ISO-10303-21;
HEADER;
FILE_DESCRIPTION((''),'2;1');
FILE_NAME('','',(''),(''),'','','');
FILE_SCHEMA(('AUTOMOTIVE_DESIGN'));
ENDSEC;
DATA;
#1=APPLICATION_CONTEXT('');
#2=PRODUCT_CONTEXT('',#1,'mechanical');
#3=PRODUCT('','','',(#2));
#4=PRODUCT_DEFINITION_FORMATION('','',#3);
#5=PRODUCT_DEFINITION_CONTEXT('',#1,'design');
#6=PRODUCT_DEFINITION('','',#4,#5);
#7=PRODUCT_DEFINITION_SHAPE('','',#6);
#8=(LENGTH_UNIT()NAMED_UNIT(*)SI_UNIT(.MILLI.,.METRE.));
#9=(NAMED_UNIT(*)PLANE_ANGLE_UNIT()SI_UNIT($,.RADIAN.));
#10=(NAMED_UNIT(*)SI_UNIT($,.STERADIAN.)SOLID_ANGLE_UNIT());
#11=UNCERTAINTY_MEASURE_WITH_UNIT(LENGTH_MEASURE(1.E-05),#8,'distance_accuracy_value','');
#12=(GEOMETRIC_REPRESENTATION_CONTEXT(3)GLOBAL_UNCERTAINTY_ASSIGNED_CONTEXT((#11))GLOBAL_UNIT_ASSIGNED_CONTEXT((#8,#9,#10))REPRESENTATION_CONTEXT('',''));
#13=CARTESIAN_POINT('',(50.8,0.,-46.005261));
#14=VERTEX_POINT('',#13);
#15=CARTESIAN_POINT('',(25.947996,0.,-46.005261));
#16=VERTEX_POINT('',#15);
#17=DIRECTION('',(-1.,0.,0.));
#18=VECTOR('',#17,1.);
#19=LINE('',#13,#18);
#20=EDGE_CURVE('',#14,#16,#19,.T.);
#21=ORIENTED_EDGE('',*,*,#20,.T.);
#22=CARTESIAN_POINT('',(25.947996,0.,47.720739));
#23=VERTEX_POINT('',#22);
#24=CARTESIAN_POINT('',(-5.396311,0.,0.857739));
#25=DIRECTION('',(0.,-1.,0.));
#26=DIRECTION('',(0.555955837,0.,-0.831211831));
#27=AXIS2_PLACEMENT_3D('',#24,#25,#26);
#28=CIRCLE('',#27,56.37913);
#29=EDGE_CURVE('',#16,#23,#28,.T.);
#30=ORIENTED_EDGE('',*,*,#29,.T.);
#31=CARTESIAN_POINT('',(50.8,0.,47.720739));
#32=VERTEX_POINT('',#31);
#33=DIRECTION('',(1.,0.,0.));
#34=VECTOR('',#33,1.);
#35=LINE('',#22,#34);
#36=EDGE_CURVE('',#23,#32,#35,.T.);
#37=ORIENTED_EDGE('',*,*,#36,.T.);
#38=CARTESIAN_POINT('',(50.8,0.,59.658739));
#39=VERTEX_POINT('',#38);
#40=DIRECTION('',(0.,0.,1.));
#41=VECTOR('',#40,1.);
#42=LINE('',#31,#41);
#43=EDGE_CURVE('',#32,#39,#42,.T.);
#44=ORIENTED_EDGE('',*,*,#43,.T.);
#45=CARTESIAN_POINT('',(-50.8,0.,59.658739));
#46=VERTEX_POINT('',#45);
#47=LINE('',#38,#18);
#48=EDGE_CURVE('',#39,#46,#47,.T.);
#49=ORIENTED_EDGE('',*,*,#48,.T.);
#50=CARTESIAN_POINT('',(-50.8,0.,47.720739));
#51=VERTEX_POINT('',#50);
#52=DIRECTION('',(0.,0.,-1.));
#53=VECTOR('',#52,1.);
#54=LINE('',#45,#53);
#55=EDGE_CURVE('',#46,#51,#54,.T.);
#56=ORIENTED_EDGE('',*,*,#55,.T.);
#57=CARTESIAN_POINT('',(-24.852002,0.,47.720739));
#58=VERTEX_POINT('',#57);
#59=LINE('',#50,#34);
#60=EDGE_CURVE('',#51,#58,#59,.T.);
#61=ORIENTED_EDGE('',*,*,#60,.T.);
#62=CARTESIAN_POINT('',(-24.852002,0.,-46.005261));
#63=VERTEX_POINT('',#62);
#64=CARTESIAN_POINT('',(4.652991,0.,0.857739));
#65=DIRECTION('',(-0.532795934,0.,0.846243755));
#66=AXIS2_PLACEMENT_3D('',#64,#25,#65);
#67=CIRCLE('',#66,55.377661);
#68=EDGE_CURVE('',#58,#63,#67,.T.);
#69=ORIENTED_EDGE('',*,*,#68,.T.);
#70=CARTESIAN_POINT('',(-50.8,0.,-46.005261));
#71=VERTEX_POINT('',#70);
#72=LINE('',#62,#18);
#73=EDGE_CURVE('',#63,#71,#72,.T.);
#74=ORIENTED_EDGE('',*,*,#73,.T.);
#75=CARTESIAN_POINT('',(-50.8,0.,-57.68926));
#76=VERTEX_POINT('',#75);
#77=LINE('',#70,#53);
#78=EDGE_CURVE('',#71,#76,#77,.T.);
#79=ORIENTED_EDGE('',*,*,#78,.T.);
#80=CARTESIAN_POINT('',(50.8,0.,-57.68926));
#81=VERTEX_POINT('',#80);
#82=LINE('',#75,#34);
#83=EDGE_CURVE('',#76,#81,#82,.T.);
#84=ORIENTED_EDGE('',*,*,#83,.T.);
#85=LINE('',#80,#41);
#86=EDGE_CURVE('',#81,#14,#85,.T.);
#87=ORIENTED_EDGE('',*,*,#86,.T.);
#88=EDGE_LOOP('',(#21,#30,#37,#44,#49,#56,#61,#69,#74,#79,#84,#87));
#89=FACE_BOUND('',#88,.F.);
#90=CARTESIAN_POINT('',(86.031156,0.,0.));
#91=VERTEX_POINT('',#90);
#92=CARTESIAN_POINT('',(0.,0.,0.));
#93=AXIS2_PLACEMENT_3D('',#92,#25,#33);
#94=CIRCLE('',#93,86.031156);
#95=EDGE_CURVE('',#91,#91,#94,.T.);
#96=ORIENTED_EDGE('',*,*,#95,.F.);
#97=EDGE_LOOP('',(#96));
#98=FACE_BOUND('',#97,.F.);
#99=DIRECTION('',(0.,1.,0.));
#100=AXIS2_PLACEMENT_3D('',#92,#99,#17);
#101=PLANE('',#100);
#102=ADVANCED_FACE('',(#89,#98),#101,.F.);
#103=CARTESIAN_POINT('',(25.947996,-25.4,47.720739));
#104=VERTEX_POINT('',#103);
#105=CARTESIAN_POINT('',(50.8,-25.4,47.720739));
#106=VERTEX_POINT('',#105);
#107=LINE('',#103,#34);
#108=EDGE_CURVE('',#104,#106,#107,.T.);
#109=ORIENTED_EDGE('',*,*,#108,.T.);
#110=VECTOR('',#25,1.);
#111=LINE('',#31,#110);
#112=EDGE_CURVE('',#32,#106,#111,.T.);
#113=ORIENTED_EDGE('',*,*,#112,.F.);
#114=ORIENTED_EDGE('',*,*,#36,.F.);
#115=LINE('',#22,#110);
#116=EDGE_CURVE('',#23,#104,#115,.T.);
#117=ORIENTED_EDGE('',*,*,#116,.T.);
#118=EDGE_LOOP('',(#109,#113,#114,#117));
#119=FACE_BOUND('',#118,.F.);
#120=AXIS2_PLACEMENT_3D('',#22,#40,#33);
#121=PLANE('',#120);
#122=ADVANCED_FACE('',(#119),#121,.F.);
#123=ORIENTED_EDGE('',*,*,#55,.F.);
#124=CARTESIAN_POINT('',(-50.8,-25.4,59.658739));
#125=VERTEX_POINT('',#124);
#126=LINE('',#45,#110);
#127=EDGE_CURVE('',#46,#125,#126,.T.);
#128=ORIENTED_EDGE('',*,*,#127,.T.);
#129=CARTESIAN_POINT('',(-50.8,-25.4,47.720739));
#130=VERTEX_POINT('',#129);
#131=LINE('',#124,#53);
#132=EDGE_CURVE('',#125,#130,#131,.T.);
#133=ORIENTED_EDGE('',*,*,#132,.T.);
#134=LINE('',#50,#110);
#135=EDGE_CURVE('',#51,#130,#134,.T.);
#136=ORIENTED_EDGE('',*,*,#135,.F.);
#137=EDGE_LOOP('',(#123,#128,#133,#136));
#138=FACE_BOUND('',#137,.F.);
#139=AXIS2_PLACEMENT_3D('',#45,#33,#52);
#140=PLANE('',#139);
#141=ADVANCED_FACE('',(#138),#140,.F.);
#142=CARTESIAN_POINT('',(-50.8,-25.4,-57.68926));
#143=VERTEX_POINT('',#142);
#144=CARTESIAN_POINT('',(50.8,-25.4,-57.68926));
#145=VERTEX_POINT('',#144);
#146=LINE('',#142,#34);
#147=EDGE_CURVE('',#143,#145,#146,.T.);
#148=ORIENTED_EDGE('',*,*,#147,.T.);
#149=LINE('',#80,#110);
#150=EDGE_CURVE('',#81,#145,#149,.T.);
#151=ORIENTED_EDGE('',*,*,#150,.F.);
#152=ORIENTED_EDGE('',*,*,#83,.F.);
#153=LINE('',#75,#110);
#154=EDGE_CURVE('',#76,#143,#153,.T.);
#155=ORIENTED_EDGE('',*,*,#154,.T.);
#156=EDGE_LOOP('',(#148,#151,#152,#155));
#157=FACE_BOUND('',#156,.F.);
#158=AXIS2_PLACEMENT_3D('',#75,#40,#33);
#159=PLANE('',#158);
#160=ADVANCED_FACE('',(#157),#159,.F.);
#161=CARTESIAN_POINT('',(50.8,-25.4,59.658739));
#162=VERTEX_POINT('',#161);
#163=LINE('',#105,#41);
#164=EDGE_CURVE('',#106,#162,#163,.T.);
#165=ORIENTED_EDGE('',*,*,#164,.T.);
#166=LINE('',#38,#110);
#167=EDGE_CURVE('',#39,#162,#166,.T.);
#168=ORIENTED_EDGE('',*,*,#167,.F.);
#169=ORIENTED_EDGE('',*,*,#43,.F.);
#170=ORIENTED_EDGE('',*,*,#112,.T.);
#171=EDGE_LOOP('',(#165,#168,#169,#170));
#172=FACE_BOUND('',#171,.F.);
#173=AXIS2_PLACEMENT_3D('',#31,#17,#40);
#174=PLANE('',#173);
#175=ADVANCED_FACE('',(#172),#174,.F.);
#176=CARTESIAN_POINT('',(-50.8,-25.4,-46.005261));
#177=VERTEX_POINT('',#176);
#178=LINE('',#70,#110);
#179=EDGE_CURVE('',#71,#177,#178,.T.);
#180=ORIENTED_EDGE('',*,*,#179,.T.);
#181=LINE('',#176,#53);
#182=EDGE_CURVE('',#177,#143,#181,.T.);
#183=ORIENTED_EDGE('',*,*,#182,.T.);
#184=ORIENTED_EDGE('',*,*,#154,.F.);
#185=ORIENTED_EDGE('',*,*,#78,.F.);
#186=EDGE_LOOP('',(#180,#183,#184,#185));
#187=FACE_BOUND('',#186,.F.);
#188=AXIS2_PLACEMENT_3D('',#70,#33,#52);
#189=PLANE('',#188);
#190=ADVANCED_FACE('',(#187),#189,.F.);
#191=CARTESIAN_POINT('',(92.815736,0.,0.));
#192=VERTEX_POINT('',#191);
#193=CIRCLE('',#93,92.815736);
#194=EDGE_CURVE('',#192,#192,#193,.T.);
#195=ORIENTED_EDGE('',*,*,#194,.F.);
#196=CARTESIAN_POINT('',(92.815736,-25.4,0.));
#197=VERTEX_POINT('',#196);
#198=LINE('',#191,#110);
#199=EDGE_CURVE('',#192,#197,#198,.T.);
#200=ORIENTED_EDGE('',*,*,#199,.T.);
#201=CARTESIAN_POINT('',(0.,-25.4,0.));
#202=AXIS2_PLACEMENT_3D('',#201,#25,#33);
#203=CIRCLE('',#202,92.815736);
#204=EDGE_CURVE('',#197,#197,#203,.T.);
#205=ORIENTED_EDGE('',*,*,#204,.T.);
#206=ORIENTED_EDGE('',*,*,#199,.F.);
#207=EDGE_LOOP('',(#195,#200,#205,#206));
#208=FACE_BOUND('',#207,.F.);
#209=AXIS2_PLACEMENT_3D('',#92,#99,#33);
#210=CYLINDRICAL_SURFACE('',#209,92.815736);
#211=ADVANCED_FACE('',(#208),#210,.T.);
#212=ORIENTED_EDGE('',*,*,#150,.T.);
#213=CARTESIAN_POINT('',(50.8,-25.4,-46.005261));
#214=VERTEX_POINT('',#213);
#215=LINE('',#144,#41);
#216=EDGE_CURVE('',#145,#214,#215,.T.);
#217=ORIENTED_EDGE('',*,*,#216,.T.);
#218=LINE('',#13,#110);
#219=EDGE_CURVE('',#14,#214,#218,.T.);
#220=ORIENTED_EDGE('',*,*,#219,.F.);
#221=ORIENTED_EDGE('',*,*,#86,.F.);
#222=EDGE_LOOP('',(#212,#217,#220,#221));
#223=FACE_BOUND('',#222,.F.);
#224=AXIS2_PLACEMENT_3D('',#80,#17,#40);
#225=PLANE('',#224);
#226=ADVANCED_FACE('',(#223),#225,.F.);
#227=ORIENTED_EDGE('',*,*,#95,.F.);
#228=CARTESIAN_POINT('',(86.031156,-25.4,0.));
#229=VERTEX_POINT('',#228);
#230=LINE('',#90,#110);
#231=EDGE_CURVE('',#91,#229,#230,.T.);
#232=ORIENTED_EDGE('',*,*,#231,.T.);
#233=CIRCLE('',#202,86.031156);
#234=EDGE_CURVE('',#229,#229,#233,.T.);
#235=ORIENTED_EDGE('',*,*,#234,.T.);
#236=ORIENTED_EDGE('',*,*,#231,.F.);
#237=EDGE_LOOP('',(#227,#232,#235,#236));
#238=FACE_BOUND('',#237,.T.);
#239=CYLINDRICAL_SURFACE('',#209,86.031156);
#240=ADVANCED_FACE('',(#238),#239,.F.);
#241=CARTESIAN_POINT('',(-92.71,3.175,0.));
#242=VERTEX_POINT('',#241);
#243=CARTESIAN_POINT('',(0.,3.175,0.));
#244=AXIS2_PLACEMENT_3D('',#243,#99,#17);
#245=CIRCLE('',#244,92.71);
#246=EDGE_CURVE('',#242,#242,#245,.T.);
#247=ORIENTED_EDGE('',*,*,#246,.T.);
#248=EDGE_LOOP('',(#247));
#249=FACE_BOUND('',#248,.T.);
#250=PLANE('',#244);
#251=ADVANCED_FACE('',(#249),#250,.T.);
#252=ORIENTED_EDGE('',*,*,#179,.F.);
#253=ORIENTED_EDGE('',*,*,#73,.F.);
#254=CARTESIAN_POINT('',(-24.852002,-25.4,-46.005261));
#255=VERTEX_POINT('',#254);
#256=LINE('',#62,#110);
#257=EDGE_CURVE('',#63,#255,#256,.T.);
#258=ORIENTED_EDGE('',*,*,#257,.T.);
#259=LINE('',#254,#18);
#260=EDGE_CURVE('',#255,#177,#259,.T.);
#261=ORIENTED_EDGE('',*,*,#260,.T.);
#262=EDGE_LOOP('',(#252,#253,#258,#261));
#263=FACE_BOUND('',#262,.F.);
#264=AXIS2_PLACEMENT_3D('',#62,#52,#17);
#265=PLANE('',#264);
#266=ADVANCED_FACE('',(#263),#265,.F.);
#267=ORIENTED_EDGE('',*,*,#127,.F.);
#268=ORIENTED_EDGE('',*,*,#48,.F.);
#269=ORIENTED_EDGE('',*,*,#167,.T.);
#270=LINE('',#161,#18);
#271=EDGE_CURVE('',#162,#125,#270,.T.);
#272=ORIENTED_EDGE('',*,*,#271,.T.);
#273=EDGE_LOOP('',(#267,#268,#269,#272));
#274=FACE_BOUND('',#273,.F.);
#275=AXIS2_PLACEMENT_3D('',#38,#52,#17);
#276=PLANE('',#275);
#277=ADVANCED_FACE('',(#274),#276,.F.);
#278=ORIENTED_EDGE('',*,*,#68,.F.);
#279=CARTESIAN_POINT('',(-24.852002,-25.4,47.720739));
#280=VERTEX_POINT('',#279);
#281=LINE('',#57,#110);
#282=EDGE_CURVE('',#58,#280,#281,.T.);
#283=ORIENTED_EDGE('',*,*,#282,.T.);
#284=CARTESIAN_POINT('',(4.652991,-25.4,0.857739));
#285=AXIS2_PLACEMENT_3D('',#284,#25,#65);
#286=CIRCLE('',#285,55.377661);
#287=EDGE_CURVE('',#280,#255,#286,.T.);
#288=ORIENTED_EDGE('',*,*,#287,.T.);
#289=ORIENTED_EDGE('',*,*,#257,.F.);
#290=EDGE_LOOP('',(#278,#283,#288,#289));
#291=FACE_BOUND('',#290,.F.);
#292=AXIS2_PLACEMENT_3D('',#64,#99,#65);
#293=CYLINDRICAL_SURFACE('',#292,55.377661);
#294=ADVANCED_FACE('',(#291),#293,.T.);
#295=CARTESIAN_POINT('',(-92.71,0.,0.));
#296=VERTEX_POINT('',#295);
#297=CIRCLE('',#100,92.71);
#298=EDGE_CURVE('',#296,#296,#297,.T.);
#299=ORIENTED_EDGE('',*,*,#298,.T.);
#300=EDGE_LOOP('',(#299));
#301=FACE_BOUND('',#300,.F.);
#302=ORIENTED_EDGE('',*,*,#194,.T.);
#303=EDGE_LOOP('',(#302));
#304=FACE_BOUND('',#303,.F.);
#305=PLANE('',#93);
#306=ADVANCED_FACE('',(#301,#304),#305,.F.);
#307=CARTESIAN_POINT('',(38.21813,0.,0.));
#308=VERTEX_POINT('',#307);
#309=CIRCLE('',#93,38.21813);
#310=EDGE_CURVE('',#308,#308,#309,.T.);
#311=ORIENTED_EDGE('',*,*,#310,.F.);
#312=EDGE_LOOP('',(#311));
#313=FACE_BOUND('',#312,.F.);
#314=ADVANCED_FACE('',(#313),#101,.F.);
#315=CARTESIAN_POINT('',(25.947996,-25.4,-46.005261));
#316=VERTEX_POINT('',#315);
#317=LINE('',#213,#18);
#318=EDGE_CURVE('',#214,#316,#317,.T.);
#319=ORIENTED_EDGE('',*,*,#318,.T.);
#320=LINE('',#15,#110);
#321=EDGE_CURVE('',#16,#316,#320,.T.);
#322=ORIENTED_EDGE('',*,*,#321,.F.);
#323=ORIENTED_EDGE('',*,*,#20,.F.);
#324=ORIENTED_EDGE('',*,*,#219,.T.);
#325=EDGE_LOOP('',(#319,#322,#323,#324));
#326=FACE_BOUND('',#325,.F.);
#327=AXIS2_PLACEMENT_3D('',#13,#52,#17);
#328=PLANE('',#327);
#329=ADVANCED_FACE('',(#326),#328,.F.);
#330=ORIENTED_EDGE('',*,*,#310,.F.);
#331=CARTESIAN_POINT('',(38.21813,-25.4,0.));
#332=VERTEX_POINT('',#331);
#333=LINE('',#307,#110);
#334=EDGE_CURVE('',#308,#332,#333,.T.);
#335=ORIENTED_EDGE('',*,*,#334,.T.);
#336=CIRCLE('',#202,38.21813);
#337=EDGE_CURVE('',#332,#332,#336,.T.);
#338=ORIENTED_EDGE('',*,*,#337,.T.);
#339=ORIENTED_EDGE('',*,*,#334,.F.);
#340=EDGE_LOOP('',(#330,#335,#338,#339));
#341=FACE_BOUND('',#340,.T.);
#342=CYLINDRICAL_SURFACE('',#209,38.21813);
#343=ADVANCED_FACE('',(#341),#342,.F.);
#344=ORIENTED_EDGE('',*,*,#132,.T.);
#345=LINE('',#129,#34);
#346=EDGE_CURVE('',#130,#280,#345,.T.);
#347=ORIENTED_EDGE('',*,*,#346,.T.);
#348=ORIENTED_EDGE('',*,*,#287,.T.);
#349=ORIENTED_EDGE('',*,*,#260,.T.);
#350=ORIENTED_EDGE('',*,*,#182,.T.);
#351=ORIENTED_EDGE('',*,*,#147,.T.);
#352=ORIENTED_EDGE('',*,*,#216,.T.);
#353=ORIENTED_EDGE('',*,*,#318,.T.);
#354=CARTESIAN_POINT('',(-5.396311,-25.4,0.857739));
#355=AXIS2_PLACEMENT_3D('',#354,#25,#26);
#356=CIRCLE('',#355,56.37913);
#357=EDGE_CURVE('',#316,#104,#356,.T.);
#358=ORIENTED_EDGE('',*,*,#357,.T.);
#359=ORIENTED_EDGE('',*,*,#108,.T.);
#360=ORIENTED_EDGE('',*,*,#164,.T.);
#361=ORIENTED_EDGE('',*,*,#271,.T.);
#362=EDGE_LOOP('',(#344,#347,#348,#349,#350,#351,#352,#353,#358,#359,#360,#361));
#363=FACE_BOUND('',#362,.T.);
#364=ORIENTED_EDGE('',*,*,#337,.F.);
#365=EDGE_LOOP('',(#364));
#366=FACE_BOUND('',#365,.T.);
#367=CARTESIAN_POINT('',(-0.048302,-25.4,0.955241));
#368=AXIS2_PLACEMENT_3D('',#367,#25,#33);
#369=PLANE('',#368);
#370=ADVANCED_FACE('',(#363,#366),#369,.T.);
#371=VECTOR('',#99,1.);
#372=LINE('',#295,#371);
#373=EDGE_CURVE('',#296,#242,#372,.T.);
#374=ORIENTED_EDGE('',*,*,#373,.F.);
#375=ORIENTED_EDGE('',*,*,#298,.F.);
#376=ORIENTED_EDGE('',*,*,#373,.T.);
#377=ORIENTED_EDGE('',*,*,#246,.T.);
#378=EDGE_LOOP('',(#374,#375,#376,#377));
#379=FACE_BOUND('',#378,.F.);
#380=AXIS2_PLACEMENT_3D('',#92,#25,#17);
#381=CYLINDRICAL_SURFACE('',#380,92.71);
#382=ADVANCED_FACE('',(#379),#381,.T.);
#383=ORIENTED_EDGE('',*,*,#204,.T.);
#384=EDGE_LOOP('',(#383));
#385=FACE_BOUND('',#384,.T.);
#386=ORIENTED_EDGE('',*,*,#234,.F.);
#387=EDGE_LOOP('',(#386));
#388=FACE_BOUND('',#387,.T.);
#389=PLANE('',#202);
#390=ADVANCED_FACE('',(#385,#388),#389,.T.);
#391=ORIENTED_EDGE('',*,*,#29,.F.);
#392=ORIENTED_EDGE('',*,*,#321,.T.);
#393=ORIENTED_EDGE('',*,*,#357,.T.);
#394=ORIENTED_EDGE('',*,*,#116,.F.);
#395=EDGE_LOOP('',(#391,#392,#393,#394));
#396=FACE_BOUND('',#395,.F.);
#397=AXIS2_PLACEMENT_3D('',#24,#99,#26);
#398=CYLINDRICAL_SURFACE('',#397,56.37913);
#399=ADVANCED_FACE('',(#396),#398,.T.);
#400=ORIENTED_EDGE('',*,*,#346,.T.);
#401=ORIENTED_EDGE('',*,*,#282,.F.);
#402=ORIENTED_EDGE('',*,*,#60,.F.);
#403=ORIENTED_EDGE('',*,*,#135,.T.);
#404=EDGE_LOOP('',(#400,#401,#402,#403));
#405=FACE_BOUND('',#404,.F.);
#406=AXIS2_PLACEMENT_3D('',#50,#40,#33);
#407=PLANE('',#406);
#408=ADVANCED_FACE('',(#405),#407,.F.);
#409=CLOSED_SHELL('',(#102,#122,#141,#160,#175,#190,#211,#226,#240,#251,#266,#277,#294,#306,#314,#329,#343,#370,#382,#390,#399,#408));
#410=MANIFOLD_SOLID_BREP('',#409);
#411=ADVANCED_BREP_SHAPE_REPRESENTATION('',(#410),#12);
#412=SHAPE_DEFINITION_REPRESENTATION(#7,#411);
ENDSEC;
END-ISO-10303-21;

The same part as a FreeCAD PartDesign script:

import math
import FreeCAD as App
import Part
import Sketcher
from FreeCAD import Vector
Q = App.Units.Quantity

doc = App.newDocument("Part")
body = doc.addObject("PartDesign::Body", "Body")

sketch1 = doc.addObject("Sketcher::SketchObject", "Sketch")
body.addObject(sketch1)
sketch1.AttachmentSupport = (doc.XZ_Plane, [""])
sketch1.MapMode = "FlatFace"
sketch1.addGeometry([
    Part.Circle(Vector(0, 0, 0), Vector(0, 0, 1), 93),
    Part.Circle(Vector(0, 0, 0), Vector(0, 0, 1), 86),
], False)
sketch1.addConstraint([
    Sketcher.Constraint("Coincident", 0, 3, -1, 1),
    Sketcher.Constraint("Coincident", 1, 3, -1, 1),
    Sketcher.Constraint("Diameter", 0, 185.631471),
    Sketcher.Constraint("Diameter", 1, 172.062311),
])
pad1 = doc.addObject("PartDesign::Pad", "Pad")
body.addObject(pad1)
pad1.Profile = sketch1
pad1.Length = Q("1 in")
body2 = doc.addObject("PartDesign::Body", "Body001")

sketch2 = doc.addObject("Sketcher::SketchObject", "Sketch001")
body2.addObject(sketch2)
sketch2.AttachmentSupport = (doc.getObject("XZ_Plane001"), [""])
sketch2.MapMode = "FlatFace"
sketch2.addGeometry([
    Part.LineSegment(Vector(51, 60, 0), Vector(-51, 60, 0)),
    Part.LineSegment(Vector(-51, 60, 0), Vector(-51, 48, 0)),
    Part.LineSegment(Vector(-51, 48, 0), Vector(-25, 48, 0)),
    Part.ArcOfCircle(Part.Circle(Vector(5, 1, 0), Vector(0, 0, 1), 55), math.radians(122), math.radians(238)),
    Part.LineSegment(Vector(-25, -46, 0), Vector(-51, -46, 0)),
    Part.LineSegment(Vector(-51, -46, 0), Vector(-51, -58, 0)),
    Part.LineSegment(Vector(-51, -58, 0), Vector(51, -58, 0)),
    Part.LineSegment(Vector(51, -58, 0), Vector(51, -46, 0)),
    Part.LineSegment(Vector(51, -46, 0), Vector(26, -46, 0)),
    Part.ArcOfCircle(Part.Circle(Vector(-5, 1, 0), Vector(0, 0, 1), 56), math.radians(-56), math.radians(56)),
    Part.LineSegment(Vector(26, 48, 0), Vector(51, 48, 0)),
    Part.LineSegment(Vector(51, 48, 0), Vector(51, 60, 0)),
    Part.Circle(Vector(0, 0, 0), Vector(0, 0, 1), 38),
], False)
sketch2.addConstraint([
    Sketcher.Constraint("Coincident", 0, 2, 1, 1),
    Sketcher.Constraint("Coincident", 1, 2, 2, 1),
    Sketcher.Constraint("Coincident", 2, 2, 3, 1),
    Sketcher.Constraint("Coincident", 3, 2, 4, 1),
    Sketcher.Constraint("Coincident", 4, 2, 5, 1),
    Sketcher.Constraint("Coincident", 5, 2, 6, 1),
    Sketcher.Constraint("Coincident", 6, 2, 7, 1),
    Sketcher.Constraint("Coincident", 7, 2, 8, 1),
    Sketcher.Constraint("Coincident", 8, 2, 9, 1),
    Sketcher.Constraint("Coincident", 9, 2, 10, 1),
    Sketcher.Constraint("Coincident", 10, 2, 11, 1),
    Sketcher.Constraint("Coincident", 11, 2, 0, 1),
    Sketcher.Constraint("Horizontal", 0),
    Sketcher.Constraint("Vertical", 1),
    Sketcher.Constraint("Horizontal", 2),
    Sketcher.Constraint("Horizontal", 4),
    Sketcher.Constraint("Vertical", 5),
    Sketcher.Constraint("Horizontal", 6),
    Sketcher.Constraint("Vertical", 7),
    Sketcher.Constraint("Horizontal", 8),
    Sketcher.Constraint("Horizontal", 10),
    Sketcher.Constraint("Vertical", 11),
    Sketcher.Constraint("Coincident", 12, 3, -1, 1),
    Sketcher.Constraint("Symmetric", 4, 2, 7, 2, -2),
    Sketcher.Constraint("Symmetric", 1, 2, 10, 2, -2),
    Sketcher.Constraint("Horizontal", 3, 3, 9, 3),
    Sketcher.Constraint("Vertical", 2, 2, 3, 2),
    Sketcher.Constraint("Vertical", 1, 2, 4, 2),
    Sketcher.Constraint("DistanceX", 0, 2, 0, 1, Q("4 in")),
    Sketcher.Constraint("DistanceX", 3, 2, 8, 2, Q("1.9999999 in")),
    Sketcher.Constraint("DistanceY", 1, 2, 1, 1, Q("0.47 in")),
    Sketcher.Constraint("DistanceY", 5, 2, 5, 1, Q("0.46 in")),
    Sketcher.Constraint("DistanceY", 3, 2, 2, 2, Q("3.69 in")),
    Sketcher.Constraint("Diameter", 12, 76.43626),
    Sketcher.Constraint("Radius", 3, 55.377661),
    Sketcher.Constraint("Radius", 9, 56.37913),
    Sketcher.Constraint("DistanceX", 2, 1, 2, 2, 25.947998),
    Sketcher.Constraint("DistanceY", -1, 1, 3, 3, 0.857739),
])
pad2 = doc.addObject("PartDesign::Pad", "Pad001")
body2.addObject(pad2)
pad2.Profile = sketch2
pad2.Length = Q("1 in")
body.AllowCompound = True
doc.recompute()

boolean = doc.addObject("PartDesign::Boolean", "Boolean")
body.addObject(boolean)
boolean.Type = "Fuse"
boolean.addObjects([body2])

sketch3 = doc.addObject("Sketcher::SketchObject", "Sketch002")
body.addObject(sketch3)
sketch3.AttachmentSupport = (doc.XZ_Plane, [""])
sketch3.MapMode = "FlatFace"
sketch3.addGeometry(Part.Circle(Vector(0, 0, 0), Vector(0, 0, 1), 93), False)
sketch3.addConstraint([
    Sketcher.Constraint("Coincident", 0, 3, -1, 1),
    Sketcher.Constraint("Diameter", 0, Q("7.3 in")),
])
pad3 = doc.addObject("PartDesign::Pad", "Pad002")
body.addObject(pad3)
pad3.Profile = sketch3
pad3.Length = Q("0.125 in")
pad3.Reversed = True

doc.recompute()
